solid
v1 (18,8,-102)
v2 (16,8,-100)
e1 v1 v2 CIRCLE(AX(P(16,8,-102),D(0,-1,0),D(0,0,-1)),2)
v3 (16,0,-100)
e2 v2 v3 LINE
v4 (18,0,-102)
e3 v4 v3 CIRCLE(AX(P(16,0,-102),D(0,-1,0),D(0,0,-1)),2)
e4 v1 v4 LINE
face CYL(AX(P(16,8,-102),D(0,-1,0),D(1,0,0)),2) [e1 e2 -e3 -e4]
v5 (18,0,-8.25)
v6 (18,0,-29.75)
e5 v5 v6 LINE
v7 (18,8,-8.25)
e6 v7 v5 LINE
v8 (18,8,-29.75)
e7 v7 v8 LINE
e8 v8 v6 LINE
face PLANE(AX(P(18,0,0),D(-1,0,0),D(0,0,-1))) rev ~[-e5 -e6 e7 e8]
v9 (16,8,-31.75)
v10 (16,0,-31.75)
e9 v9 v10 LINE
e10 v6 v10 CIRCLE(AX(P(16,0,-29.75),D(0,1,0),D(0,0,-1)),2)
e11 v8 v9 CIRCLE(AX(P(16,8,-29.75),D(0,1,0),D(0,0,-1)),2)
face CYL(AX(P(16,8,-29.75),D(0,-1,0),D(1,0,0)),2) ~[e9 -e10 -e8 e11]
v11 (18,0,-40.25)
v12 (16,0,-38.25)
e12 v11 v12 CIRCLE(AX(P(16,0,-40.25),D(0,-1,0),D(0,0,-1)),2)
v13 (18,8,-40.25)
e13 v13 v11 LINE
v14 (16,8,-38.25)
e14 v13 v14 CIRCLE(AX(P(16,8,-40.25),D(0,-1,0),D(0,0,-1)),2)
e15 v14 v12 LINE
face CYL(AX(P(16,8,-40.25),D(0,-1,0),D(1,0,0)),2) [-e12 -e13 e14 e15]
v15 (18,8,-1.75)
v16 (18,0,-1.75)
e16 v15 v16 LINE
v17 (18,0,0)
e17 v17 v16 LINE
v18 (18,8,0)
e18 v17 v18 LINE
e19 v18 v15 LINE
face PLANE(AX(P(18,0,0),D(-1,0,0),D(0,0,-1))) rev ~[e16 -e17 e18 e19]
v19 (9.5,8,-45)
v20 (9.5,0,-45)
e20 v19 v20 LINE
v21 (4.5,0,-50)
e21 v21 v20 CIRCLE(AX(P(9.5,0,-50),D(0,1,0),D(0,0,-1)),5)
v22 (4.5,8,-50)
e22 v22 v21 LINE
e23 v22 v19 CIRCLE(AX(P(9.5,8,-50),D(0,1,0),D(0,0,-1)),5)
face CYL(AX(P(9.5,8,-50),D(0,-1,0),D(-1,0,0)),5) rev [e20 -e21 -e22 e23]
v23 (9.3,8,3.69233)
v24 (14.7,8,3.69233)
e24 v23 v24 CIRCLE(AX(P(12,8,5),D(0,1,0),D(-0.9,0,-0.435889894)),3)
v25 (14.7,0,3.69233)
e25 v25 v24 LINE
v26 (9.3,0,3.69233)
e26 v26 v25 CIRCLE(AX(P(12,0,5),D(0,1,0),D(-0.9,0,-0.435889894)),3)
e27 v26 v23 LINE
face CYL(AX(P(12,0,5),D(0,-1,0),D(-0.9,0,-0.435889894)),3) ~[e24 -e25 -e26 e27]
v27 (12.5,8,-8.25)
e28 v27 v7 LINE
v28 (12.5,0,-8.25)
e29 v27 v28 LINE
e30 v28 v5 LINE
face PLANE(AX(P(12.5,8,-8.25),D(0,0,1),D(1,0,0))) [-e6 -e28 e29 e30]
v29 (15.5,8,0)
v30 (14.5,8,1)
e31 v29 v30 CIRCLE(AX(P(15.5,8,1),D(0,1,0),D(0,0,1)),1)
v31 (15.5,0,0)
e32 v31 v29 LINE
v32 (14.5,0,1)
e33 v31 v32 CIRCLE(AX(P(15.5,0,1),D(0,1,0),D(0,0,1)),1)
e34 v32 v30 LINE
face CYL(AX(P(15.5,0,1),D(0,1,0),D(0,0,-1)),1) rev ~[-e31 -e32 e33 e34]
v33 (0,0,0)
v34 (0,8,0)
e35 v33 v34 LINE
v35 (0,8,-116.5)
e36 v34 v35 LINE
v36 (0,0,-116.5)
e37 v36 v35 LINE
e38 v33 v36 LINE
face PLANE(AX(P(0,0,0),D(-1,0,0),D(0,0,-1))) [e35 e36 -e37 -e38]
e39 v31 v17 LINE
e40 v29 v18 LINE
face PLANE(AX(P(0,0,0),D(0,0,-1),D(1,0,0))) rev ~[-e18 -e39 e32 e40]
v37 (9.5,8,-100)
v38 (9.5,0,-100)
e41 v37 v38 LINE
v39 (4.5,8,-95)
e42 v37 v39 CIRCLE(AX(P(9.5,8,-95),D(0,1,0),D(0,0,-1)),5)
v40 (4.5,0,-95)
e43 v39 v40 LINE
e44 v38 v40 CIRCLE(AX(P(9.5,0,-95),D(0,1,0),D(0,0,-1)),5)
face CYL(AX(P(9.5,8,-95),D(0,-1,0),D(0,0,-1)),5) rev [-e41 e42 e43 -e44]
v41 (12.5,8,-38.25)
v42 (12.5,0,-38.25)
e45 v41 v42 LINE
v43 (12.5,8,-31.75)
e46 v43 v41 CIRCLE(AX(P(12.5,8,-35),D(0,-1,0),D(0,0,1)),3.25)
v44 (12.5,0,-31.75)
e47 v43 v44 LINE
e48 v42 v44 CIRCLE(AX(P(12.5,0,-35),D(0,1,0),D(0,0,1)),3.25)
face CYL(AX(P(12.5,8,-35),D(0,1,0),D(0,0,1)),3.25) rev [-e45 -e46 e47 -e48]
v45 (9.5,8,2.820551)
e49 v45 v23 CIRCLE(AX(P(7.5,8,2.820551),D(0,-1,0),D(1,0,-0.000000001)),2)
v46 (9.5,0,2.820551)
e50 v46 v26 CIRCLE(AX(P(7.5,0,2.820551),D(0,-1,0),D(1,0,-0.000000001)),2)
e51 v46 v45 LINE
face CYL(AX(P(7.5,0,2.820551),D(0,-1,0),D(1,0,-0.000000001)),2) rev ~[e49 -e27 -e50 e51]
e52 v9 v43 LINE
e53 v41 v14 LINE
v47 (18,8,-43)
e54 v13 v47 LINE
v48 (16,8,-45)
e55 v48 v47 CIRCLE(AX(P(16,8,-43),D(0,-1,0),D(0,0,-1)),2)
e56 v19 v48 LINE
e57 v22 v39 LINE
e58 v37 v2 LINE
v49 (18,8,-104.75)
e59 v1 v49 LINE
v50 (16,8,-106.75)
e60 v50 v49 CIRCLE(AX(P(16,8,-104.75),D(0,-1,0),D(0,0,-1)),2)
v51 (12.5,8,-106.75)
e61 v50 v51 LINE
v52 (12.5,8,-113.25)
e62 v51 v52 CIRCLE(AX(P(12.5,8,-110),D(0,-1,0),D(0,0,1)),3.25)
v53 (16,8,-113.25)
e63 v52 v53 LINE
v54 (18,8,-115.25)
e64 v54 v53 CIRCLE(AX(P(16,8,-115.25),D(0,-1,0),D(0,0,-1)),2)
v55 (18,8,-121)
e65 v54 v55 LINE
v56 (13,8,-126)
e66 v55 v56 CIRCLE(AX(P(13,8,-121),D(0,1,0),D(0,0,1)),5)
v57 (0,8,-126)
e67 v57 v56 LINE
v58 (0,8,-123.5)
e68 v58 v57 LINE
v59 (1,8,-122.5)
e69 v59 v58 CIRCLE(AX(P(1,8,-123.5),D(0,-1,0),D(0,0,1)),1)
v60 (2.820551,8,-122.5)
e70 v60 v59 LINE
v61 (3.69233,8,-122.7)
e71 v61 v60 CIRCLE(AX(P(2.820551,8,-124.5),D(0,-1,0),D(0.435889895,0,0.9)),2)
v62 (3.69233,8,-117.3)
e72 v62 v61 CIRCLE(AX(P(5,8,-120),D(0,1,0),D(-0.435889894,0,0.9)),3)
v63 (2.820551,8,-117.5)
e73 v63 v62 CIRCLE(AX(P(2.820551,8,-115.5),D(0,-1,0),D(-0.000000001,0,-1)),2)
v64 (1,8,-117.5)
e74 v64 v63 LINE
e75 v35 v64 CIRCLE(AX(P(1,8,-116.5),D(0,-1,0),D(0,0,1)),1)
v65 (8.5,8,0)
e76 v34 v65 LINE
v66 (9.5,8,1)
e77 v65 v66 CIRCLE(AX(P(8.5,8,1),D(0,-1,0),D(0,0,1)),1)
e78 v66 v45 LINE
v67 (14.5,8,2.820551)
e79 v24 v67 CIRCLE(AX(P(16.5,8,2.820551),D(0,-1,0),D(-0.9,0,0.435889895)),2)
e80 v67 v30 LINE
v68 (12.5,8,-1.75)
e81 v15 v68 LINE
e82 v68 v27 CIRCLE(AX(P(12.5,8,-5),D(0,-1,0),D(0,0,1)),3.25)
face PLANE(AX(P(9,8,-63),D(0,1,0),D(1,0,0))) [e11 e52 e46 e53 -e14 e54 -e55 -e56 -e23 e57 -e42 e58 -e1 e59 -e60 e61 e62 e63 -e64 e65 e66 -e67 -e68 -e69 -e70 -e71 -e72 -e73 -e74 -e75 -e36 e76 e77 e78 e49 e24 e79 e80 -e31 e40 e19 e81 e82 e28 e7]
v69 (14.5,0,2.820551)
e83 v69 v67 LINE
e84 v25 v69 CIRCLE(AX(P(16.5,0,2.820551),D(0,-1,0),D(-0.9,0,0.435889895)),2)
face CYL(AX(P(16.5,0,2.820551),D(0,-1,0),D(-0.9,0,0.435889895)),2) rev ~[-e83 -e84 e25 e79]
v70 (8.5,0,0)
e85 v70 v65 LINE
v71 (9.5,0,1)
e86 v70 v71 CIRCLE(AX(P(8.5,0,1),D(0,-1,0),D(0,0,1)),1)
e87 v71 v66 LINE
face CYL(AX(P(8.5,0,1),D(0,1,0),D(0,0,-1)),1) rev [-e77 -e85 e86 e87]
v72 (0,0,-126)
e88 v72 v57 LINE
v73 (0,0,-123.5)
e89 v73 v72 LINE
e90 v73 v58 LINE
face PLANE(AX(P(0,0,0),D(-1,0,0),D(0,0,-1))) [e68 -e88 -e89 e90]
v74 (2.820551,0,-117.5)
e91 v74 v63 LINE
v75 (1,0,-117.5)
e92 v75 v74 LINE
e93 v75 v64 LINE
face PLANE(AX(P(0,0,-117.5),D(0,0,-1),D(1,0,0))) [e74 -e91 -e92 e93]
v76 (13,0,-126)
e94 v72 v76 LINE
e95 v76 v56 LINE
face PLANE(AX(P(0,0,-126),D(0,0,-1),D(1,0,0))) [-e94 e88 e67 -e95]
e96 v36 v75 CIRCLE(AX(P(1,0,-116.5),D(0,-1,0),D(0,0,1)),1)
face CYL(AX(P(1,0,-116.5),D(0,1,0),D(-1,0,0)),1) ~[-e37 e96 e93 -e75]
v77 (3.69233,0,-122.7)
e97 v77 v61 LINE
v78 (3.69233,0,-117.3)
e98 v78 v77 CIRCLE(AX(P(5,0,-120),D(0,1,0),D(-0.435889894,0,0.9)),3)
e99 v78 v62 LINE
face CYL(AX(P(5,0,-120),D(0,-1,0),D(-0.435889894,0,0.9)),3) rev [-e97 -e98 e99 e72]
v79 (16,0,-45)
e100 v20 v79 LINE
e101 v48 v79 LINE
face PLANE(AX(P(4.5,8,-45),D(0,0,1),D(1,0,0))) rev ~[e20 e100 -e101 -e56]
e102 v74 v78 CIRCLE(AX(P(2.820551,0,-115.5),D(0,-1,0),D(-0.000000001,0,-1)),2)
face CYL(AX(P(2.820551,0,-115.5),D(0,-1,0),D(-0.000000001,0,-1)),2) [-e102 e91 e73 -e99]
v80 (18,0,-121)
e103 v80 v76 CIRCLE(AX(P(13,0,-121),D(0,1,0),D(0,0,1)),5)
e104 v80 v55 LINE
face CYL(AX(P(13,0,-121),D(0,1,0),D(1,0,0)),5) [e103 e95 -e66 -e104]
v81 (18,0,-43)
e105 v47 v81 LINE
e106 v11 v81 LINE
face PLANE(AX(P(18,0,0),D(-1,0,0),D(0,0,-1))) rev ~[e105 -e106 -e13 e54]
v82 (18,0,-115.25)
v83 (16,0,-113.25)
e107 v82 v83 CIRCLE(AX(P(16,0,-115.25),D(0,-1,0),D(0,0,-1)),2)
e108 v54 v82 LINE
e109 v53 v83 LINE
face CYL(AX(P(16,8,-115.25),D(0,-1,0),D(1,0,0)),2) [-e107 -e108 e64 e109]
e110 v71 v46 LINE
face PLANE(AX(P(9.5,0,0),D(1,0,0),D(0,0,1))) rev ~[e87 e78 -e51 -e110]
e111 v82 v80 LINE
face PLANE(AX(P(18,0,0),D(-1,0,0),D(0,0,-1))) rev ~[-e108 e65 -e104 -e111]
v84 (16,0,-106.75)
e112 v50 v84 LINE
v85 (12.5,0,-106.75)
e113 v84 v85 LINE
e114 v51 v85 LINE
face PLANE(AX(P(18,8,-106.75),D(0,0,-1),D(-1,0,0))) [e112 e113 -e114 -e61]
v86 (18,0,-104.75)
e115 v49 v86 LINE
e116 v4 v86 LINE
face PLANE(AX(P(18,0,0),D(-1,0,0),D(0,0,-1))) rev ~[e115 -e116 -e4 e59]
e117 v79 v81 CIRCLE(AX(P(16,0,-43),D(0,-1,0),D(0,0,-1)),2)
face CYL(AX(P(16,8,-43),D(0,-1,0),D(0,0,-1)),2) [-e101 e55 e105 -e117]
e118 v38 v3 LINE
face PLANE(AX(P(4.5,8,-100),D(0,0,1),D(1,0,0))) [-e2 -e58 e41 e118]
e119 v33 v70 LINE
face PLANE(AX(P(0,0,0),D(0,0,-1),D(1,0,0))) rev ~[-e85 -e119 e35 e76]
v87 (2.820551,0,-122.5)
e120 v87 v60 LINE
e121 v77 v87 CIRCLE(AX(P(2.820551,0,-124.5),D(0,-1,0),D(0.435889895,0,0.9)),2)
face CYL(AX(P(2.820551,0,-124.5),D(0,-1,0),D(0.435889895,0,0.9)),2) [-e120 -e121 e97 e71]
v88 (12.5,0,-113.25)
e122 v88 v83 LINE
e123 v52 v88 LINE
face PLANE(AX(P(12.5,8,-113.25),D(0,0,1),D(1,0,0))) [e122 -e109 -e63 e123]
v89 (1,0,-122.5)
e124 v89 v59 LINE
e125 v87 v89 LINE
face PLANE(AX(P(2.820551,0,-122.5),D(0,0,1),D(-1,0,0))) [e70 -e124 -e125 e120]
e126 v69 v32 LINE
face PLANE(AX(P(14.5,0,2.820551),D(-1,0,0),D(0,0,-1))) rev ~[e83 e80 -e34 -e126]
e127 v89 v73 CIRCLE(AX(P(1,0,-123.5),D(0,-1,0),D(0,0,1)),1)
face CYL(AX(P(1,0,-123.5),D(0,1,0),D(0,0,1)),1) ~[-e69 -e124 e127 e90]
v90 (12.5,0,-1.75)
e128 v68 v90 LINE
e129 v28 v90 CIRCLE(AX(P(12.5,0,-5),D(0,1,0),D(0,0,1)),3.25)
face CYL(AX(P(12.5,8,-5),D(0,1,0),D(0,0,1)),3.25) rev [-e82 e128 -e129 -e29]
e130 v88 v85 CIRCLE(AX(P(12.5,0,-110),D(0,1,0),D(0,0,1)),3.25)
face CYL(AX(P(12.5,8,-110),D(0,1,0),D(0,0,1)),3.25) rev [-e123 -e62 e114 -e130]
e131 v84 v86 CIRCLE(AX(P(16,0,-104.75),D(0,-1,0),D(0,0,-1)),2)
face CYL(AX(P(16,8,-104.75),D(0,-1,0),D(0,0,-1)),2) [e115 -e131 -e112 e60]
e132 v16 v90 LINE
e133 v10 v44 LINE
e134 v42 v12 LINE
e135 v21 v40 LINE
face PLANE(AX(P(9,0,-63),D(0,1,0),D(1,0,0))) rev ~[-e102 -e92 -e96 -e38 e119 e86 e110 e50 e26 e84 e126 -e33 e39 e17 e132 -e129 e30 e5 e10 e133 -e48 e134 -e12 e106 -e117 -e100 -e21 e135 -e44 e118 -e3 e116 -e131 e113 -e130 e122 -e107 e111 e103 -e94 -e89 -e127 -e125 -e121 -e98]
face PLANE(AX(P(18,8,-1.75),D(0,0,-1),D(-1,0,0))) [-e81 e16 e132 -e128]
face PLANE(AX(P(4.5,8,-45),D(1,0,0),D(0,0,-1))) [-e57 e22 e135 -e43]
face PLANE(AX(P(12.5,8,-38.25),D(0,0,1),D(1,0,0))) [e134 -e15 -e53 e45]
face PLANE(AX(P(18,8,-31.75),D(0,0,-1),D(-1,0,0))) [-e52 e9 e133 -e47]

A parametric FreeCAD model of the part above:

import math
import FreeCAD as App
import Part
import Sketcher

V = App.Vector
Q = App.Units.Quantity


def edges_at(feature, points):
    """Names of the edges that pass closest to the given points."""
    edges = feature.Shape.Edges
    near = lambda p: min(range(len(edges)), key=lambda i: edges[i].distToShape(Part.Vertex(*p))[0])
    return sorted({f"Edge{near(p) + 1}" for p in points})

doc = App.newDocument("Part")
body = doc.addObject("PartDesign::Body", "Body")

# Sketch on XZ plane
sketch1 = body.newObject("Sketcher::SketchObject", "Sketch")
sketch1.AttachmentSupport = (doc.getObject("XZ_Plane"), [""])
sketch1.MapMode = "FlatFace"
sketch1.addGeometry(Part.LineSegment(V(0, -126, 0), V(0, 0, 0)), False)
sketch1.addGeometry(Part.LineSegment(V(0, 0, 0), V(18, 0, 0)), False)
sketch1.addGeometry(Part.LineSegment(V(18, 0, 0), V(18, -126, 0)), False)
sketch1.addGeometry(Part.LineSegment(V(18, -126, 0), V(0, -126, 0)), False)
sketch1.addConstraint(Sketcher.Constraint("Coincident", 0, 2, 1, 1))
sketch1.addConstraint(Sketcher.Constraint("Coincident", 1, 2, 2, 1))
sketch1.addConstraint(Sketcher.Constraint("Coincident", 2, 2, 3, 1))
sketch1.addConstraint(Sketcher.Constraint("Coincident", 3, 2, 0, 1))
sketch1.addConstraint(Sketcher.Constraint("Vertical", 0))
sketch1.addConstraint(Sketcher.Constraint("Horizontal", 1))
sketch1.addConstraint(Sketcher.Constraint("Vertical", 2))
sketch1.addConstraint(Sketcher.Constraint("Horizontal", 3))
sketch1.addConstraint(Sketcher.Constraint("Coincident", 0, 2, -1, 1))
sketch1.addConstraint(Sketcher.Constraint("DistanceX", 1, 1, 1, 2, Q("18 mm")))
sketch1.addConstraint(Sketcher.Constraint("DistanceY", 0, 1, 0, 2, Q("126 mm")))
pad1 = body.newObject("PartDesign::Pad", "Pad")
pad1.Profile = sketch1
pad1.Length = 8
pad1.Reversed = True

# Sketch on XZ plane
sketch2 = body.newObject("Sketcher::SketchObject", "Sketch001")
sketch2.AttachmentSupport = (doc.getObject("XZ_Plane"), [""])
sketch2.MapMode = "FlatFace"
sketch2.AttachmentOffset = App.Placement(V(0, 0, -8), App.Rotation())
sketch2.addGeometry(Part.LineSegment(V(4, -100, 0), V(4, -45, 0)), False)
sketch2.addGeometry(Part.LineSegment(V(4, -45, 0), V(18, -45, 0)), False)
sketch2.addGeometry(Part.LineSegment(V(18, -45, 0), V(18, -100, 0)), False)
sketch2.addGeometry(Part.LineSegment(V(18, -100, 0), V(4, -100, 0)), False)
sketch2.addConstraint(Sketcher.Constraint("Coincident", 0, 2, 1, 1))
sketch2.addConstraint(Sketcher.Constraint("Coincident", 1, 2, 2, 1))
sketch2.addConstraint(Sketcher.Constraint("Coincident", 2, 2, 3, 1))
sketch2.addConstraint(Sketcher.Constraint("Coincident", 3, 2, 0, 1))
sketch2.addConstraint(Sketcher.Constraint("Vertical", 0))
sketch2.addConstraint(Sketcher.Constraint("Horizontal", 1))
sketch2.addConstraint(Sketcher.Constraint("Vertical", 2))
sketch2.addConstraint(Sketcher.Constraint("Horizontal", 3))
sketch2.addConstraint(Sketcher.Constraint("DistanceY", 0, 1, 0, 2, Q("55 mm")))
sketch2.addConstraint(Sketcher.Constraint("DistanceX", 1, 1, 1, 2, Q("13.5 mm")))
sketch2.addConstraint(Sketcher.Constraint("DistanceY", 0, 2, -1, 1, Q("45 mm")))
sketch2.addConstraint(Sketcher.Constraint("DistanceX", -1, 1, 1, 2, Q("18 mm")))
pocket1 = body.newObject("PartDesign::Pocket", "Pocket")
pocket1.Profile = sketch2
pocket1.Length = 10
pocket1.Reversed = True

# Sketch on XZ plane
sketch3 = body.newObject("Sketcher::SketchObject", "Sketch002")
sketch3.AttachmentSupport = (doc.getObject("XZ_Plane"), [""])
sketch3.MapMode = "FlatFace"
sketch3.AttachmentOffset = App.Placement(V(0, 0, -8), App.Rotation())
sketch3.addGeometry(Part.LineSegment(V(18, -8.2, 0), V(12.5, -8.2, 0)), False)
sketch3.addGeometry(Part.ArcOfCircle(Part.Circle(V(12.5, -5, 0), V(0, 0, 1), 3.2), math.radians(90), math.radians(270)), False)
sketch3.addGeometry(Part.LineSegment(V(12.5, -1.8, 0), V(18, -1.8, 0)), False)
sketch3.addGeometry(Part.ArcOfCircle(Part.Circle(V(18, -5, 0), V(0, 0, 1), 3.2), math.radians(-90), math.radians(90)), False)
sketch3.addGeometry(Part.LineSegment(V(18, -113.2, 0), V(12.5, -113.2, 0)), False)
sketch3.addGeometry(Part.ArcOfCircle(Part.Circle(V(12.5, -110, 0), V(0, 0, 1), 3.2), math.radians(90), math.radians(270)), False)
sketch3.addGeometry(Part.LineSegment(V(12.5, -106.8, 0), V(18, -106.8, 0)), False)
sketch3.addGeometry(Part.ArcOfCircle(Part.Circle(V(18, -110, 0), V(0, 0, 1), 3.2), math.radians(-90), math.radians(90)), False)
sketch3.addGeometry(Part.LineSegment(V(18, -38.2, 0), V(12.5, -38.2, 0)), False)
sketch3.addGeometry(Part.ArcOfCircle(Part.Circle(V(12.5, -35, 0), V(0, 0, 1), 3.2), math.radians(90), math.radians(270)), False)
sketch3.addGeometry(Part.LineSegment(V(12.5, -31.8, 0), V(18, -31.8, 0)), False)
sketch3.addGeometry(Part.ArcOfCircle(Part.Circle(V(18, -35, 0), V(0, 0, 1), 3.2), math.radians(-90), math.radians(90)), False)
sketch3.addConstraint(Sketcher.Constraint("Tangent", 0, 2, 1, 2))
sketch3.addConstraint(Sketcher.Constraint("Tangent", 1, 1, 2, 1))
sketch3.addConstraint(Sketcher.Constraint("Tangent", 2, 2, 3, 2))
sketch3.addConstraint(Sketcher.Constraint("Tangent", 3, 1, 0, 1))
sketch3.addConstraint(Sketcher.Constraint("Tangent", 4, 2, 5, 2))
sketch3.addConstraint(Sketcher.Constraint("Tangent", 5, 1, 6, 1))
sketch3.addConstraint(Sketcher.Constraint("Tangent", 6, 2, 7, 2))
sketch3.addConstraint(Sketcher.Constraint("Tangent", 7, 1, 4, 1))
sketch3.addConstraint(Sketcher.Constraint("Tangent", 8, 2, 9, 2))
sketch3.addConstraint(Sketcher.Constraint("Tangent", 9, 1, 10, 1))
sketch3.addConstraint(Sketcher.Constraint("Tangent", 10, 2, 11, 2))
sketch3.addConstraint(Sketcher.Constraint("Tangent", 11, 1, 8, 1))
sketch3.addConstraint(Sketcher.Constraint("Horizontal", 0))
sketch3.addConstraint(Sketcher.Constraint("Horizontal", 2))
sketch3.addConstraint(Sketcher.Constraint("Horizontal", 4))
sketch3.addConstraint(Sketcher.Constraint("Horizontal", 6))
sketch3.addConstraint(Sketcher.Constraint("Horizontal", 8))
sketch3.addConstraint(Sketcher.Constraint("Horizontal", 10))
sketch3.addConstraint(Sketcher.Constraint("Equal", 3, 5))
sketch3.addConstraint(Sketcher.Constraint("Equal", 7, 9))
sketch3.addConstraint(Sketcher.Constraint("Vertical", 1, 3, 5, 3))
sketch3.addConstraint(Sketcher.Constraint("Vertical", 3, 3, 7, 3))
sketch3.addConstraint(Sketcher.Constraint("Vertical", 5, 3, 9, 3))
sketch3.addConstraint(Sketcher.Constraint("Vertical", 7, 3, 11, 3))
sketch3.addConstraint(Sketcher.Constraint("Radius", 1, Q("3.25 mm")))
sketch3.addConstraint(Sketcher.Constraint("DistanceX", 0, 2, 0, 1, Q("5.5 mm")))
sketch3.addConstraint(Sketcher.Constraint("DistanceY", 1, 3, -1, 1, Q("5 mm")))
sketch3.addConstraint(Sketcher.Constraint("DistanceX", -1, 1, 3, 3, Q("18 mm")))
sketch3.addConstraint(Sketcher.Constraint("DistanceY", 5, 3, -1, 1, Q("110 mm")))
sketch3.addConstraint(Sketcher.Constraint("DistanceY", 9, 3, -1, 1, Q("35 mm")))
pocket2 = body.newObject("PartDesign::Pocket", "Pocket001")
pocket2.Profile = sketch3
pocket2.Length = 10
pocket2.Reversed = True
doc.recompute()

fillet = body.newObject("PartDesign::Fillet", "Fillet")
fillet.Base = (pocket2, edges_at(pocket2, [(4.5, 4, -45), (4.5, 4, -100)]))
fillet.Radius = 5
doc.recompute()

fillet2 = body.newObject("PartDesign::Fillet", "Fillet001")
fillet2.Base = (fillet, edges_at(fillet, [(18, 4, -126)]))
fillet2.Radius = 5
doc.recompute()

fillet3 = body.newObject("PartDesign::Fillet", "Fillet002")
fillet3.Base = (fillet2, edges_at(fillet2, [
    (18, 4, -100),
    (18, 4, -45),
    (18, 4, -113.25),
    (18, 4, -106.75),
    (18, 4, -38.25),
    (18, 4, -31.75),
]))
fillet3.Radius = 2

# Sketch on XZ plane
sketch4 = body.newObject("Sketcher::SketchObject", "Sketch003")
sketch4.AttachmentSupport = (doc.getObject("XZ_Plane"), [""])
sketch4.MapMode = "FlatFace"
sketch4.addGeometry(Part.LineSegment(V(2.8, -117.5, 0), V(0, -117.5, 0)), False)
sketch4.addGeometry(Part.LineSegment(V(0, -117.5, 0), V(0, -122.5, 0)), False)
sketch4.addGeometry(Part.LineSegment(V(0, -122.5, 0), V(2.8, -122.5, 0)), False)
sketch4.addGeometry(Part.ArcOfCircle(Part.Circle(V(2.8, -124.5, 0), V(0, 0, 1), 2), math.radians(64), math.radians(90)), False)
sketch4.addGeometry(Part.ArcOfCircle(Part.Circle(V(5, -120, 0), V(0, 0, 1), 3), math.radians(-116), math.radians(116)), False)
sketch4.addGeometry(Part.ArcOfCircle(Part.Circle(V(2.8, -115.5, 0), V(0, 0, 1), 2), math.radians(-90), math.radians(-64)), False)
sketch4.addConstraint(Sketcher.Constraint("Coincident", 0, 2, 1, 1))
sketch4.addConstraint(Sketcher.Constraint("Coincident", 1, 2, 2, 1))
sketch4.addConstraint(Sketcher.Constraint("Tangent", 2, 2, 3, 2))
sketch4.addConstraint(Sketcher.Constraint("Tangent", 3, 1, 4, 1))
sketch4.addConstraint(Sketcher.Constraint("Tangent", 4, 2, 5, 2))
sketch4.addConstraint(Sketcher.Constraint("Tangent", 5, 1, 0, 1))
sketch4.addConstraint(Sketcher.Constraint("Horizontal", 0))
sketch4.addConstraint(Sketcher.Constraint("Vertical", 1))
sketch4.addConstraint(Sketcher.Constraint("Horizontal", 2))
sketch4.addConstraint(Sketcher.Constraint("Equal", 3, 5))
sketch4.addConstraint(Sketcher.Constraint("PointOnObject", 0, 2, -2))
sketch4.addConstraint(Sketcher.Constraint("Vertical", 3, 3, 5, 3))
sketch4.addConstraint(Sketcher.Constraint("Radius", 3, Q("2 mm")))
sketch4.addConstraint(Sketcher.Constraint("Radius", 4, Q("3 mm")))
sketch4.addConstraint(Sketcher.Constraint("DistanceY", 1, 2, 1, 1, Q("5 mm")))
sketch4.addConstraint(Sketcher.Constraint("DistanceX", -1, 1, 4, 3, Q("5 mm")))
sketch4.addConstraint(Sketcher.Constraint("DistanceY", 4, 3, -1, 1, Q("120 mm")))
pocket3 = body.newObject("PartDesign::Pocket", "Pocket002")
pocket3.Profile = sketch4
pocket3.Length = 8

# Sketch on XZ plane
sketch5 = body.newObject("Sketcher::SketchObject", "Sketch004")
sketch5.AttachmentSupport = (doc.getObject("XZ_Plane"), [""])
sketch5.MapMode = "FlatFace"
sketch5.addGeometry(Part.LineSegment(V(9.5, 2.8, 0), V(9.5, 0, 0)), False)
sketch5.addGeometry(Part.LineSegment(V(9.5, 0, 0), V(14.5, 0, 0)), False)
sketch5.addGeometry(Part.LineSegment(V(14.5, 0, 0), V(14.5, 2.8, 0)), False)
sketch5.addGeometry(Part.ArcOfCircle(Part.Circle(V(16.5, 2.8, 0), V(0, 0, 1), 2), math.radians(154), math.radians(180)), False)
sketch5.addGeometry(Part.ArcOfCircle(Part.Circle(V(12, 5, 0), V(0, 0, 1), 3), math.radians(-26), math.radians(206)), False)
sketch5.addGeometry(Part.ArcOfCircle(Part.Circle(V(7.5, 2.8, 0), V(0, 0, 1), 2), math.radians(0), math.radians(26)), False)
sketch5.addConstraint(Sketcher.Constraint("Coincident", 0, 2, 1, 1))
sketch5.addConstraint(Sketcher.Constraint("Coincident", 1, 2, 2, 1))
sketch5.addConstraint(Sketcher.Constraint("Tangent", 2, 2, 3, 2))
sketch5.addConstraint(Sketcher.Constraint("Tangent", 3, 1, 4, 1))
sketch5.addConstraint(Sketcher.Constraint("Tangent", 4, 2, 5, 2))
sketch5.addConstraint(Sketcher.Constraint("Tangent", 5, 1, 0, 1))
sketch5.addConstraint(Sketcher.Constraint("Vertical", 0))
sketch5.addConstraint(Sketcher.Constraint("Horizontal", 1))
sketch5.addConstraint(Sketcher.Constraint("Vertical", 2))
sketch5.addConstraint(Sketcher.Constraint("Equal", 3, 5))
sketch5.addConstraint(Sketcher.Constraint("PointOnObject", 0, 2, -1))
sketch5.addConstraint(Sketcher.Constraint("Horizontal", 3, 3, 5, 3))
sketch5.addConstraint(Sketcher.Constraint("Radius", 3, Q("2 mm")))
sketch5.addConstraint(Sketcher.Constraint("Radius", 4, Q("3 mm")))
sketch5.addConstraint(Sketcher.Constraint("DistanceX", 1, 1, 1, 2, Q("5 mm")))
sketch5.addConstraint(Sketcher.Constraint("DistanceX", -1, 1, 4, 3, Q("12 mm")))
sketch5.addConstraint(Sketcher.Constraint("DistanceY", -1, 1, 4, 3, Q("5 mm")))
pad2 = body.newObject("PartDesign::Pad", "Pad001")
pad2.Profile = sketch5
pad2.Length = 8
pad2.Reversed = True
doc.recompute()

fillet4 = body.newObject("PartDesign::Fillet", "Fillet003")
fillet4.Base = (pad2, edges_at(pad2, [
    (0, 4, -117.5),
    (0, 4, -122.5),
    (9.5, 4, 0),
    (14.5, 4, 0),
]))
fillet4.Radius = 1

doc.recompute()
